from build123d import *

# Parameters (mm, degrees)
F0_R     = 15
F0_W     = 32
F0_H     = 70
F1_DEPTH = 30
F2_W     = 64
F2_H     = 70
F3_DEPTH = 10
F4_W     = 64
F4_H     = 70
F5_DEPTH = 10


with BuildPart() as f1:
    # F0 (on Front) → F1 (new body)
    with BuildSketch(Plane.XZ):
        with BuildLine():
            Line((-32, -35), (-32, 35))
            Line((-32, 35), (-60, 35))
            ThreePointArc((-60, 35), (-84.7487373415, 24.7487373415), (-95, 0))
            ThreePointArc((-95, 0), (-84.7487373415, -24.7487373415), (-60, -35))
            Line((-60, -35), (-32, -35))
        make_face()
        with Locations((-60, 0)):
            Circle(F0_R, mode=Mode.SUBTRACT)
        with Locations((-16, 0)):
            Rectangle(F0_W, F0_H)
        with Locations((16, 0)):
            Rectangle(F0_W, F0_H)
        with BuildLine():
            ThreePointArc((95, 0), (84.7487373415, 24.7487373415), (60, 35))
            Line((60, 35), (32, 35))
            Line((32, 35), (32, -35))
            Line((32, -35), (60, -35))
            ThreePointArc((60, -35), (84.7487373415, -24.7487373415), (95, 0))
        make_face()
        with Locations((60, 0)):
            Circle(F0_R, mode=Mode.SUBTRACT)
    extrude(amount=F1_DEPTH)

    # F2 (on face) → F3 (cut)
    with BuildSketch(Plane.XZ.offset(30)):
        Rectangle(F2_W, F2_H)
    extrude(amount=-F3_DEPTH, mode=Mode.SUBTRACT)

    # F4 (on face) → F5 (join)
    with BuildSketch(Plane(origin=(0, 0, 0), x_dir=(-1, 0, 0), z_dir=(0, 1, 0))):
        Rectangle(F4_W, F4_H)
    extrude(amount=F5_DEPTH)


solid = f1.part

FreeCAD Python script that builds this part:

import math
import FreeCAD as App
import Part
import Sketcher

doc = App.newDocument("Part")
body = doc.addObject("PartDesign::Body", "Body")

# Sketch on XZ plane
sketch1 = doc.addObject("Sketcher::SketchObject", "Sketch")
body.addObject(sketch1)
sketch1.AttachmentSupport = (doc.XZ_Plane, [""])
sketch1.MapMode = "FlatFace"
sketch1.addGeometry(Part.LineSegment(App.Vector(-60, -35, 0), App.Vector(60, -35, 0)), False)
sketch1.addGeometry(Part.ArcOfCircle(Part.Circle(App.Vector(60, 0, 0), App.Vector(0, 0, 1), 35), math.radians(-90), math.radians(0)), False)
sketch1.addGeometry(Part.ArcOfCircle(Part.Circle(App.Vector(60, 0, 0), App.Vector(0, 0, 1), 35), math.radians(0), math.radians(90)), False)
sketch1.addGeometry(Part.LineSegment(App.Vector(60, 35, 0), App.Vector(-60, 35, 0)), False)
sketch1.addGeometry(Part.ArcOfCircle(Part.Circle(App.Vector(-60, 0, 0), App.Vector(0, 0, 1), 35), math.radians(90), math.radians(180)), False)
sketch1.addGeometry(Part.ArcOfCircle(Part.Circle(App.Vector(-60, 0, 0), App.Vector(0, 0, 1), 35), math.radians(180), math.radians(270)), False)
sketch1.addGeometry(Part.Circle(App.Vector(-60, 0, 0), App.Vector(0, 0, 1), 15), False)
sketch1.addGeometry(Part.Circle(App.Vector(60, 0, 0), App.Vector(0, 0, 1), 15), False)
sketch1.addConstraint(Sketcher.Constraint("Tangent", 0, 2, 1, 1))
sketch1.addConstraint(Sketcher.Constraint("Tangent", 1, 2, 2, 1))
sketch1.addConstraint(Sketcher.Constraint("Tangent", 2, 2, 3, 1))
sketch1.addConstraint(Sketcher.Constraint("Tangent", 3, 2, 4, 1))
sketch1.addConstraint(Sketcher.Constraint("Tangent", 4, 2, 5, 1))
sketch1.addConstraint(Sketcher.Constraint("Tangent", 5, 2, 0, 1))
sketch1.addConstraint(Sketcher.Constraint("Horizontal", 0))
sketch1.addConstraint(Sketcher.Constraint("Horizontal", 3))
sketch1.addConstraint(Sketcher.Constraint("Coincident", 6, 3, 4, 3))
sketch1.addConstraint(Sketcher.Constraint("Coincident", 7, 3, 1, 3))
sketch1.addConstraint(Sketcher.Constraint("Equal", 1, 2))
sketch1.addConstraint(Sketcher.Constraint("Equal", 2, 4))
sketch1.addConstraint(Sketcher.Constraint("Equal", 6, 7))
sketch1.addConstraint(Sketcher.Constraint("Symmetric", 1, 3, 4, 3, -1, 1))
sketch1.addConstraint(Sketcher.Constraint("PointOnObject", 1, 2, -1))
sketch1.addConstraint(Sketcher.Constraint("PointOnObject", 4, 2, -1))
sketch1.addConstraint(Sketcher.Constraint("Diameter", 6, 30.0))
sketch1.addConstraint(Sketcher.Constraint("Radius", 1, 35.0))
sketch1.addConstraint(Sketcher.Constraint("DistanceX", 0, 1, 0, 2, 120.0))
pad1 = doc.addObject("PartDesign::Pad", "Pad")
body.addObject(pad1)
pad1.Profile = sketch1
pad1.Length = 30

# Sketch on XZ plane
sketch2 = doc.addObject("Sketcher::SketchObject", "Sketch001")
body.addObject(sketch2)
sketch2.AttachmentSupport = (doc.XZ_Plane, [""])
sketch2.MapMode = "FlatFace"
sketch2.AttachmentOffset = App.Placement(App.Vector(0, 0, 30), App.Rotation())
sketch2.addGeometry(Part.LineSegment(App.Vector(-32, 35, 0), App.Vector(-32, -35, 0)), False)
sketch2.addGeometry(Part.LineSegment(App.Vector(-32, -35, 0), App.Vector(32, -35, 0)), False)
sketch2.addGeometry(Part.LineSegment(App.Vector(32, -35, 0), App.Vector(32, 35, 0)), False)
sketch2.addGeometry(Part.LineSegment(App.Vector(32, 35, 0), App.Vector(-32, 35, 0)), False)
sketch2.addConstraint(Sketcher.Constraint("Coincident", 0, 2, 1, 1))
sketch2.addConstraint(Sketcher.Constraint("Coincident", 1, 2, 2, 1))
sketch2.addConstraint(Sketcher.Constraint("Coincident", 2, 2, 3, 1))
sketch2.addConstraint(Sketcher.Constraint("Coincident", 3, 2, 0, 1))
sketch2.addConstraint(Sketcher.Constraint("Vertical", 0))
sketch2.addConstraint(Sketcher.Constraint("Horizontal", 1))
sketch2.addConstraint(Sketcher.Constraint("Vertical", 2))
sketch2.addConstraint(Sketcher.Constraint("Horizontal", 3))
sketch2.addConstraint(Sketcher.Constraint("Symmetric", 0, 2, 2, 2, -1, 1))
sketch2.addConstraint(Sketcher.Constraint("DistanceX", 1, 1, 1, 2, 64.0))
sketch2.addConstraint(Sketcher.Constraint("DistanceY", 0, 2, 0, 1, 70.0))
pocket1 = doc.addObject("PartDesign::Pocket", "Pocket")
body.addObject(pocket1)
pocket1.Profile = sketch2
pocket1.Length = 10

# Sketch on XZ plane
sketch3 = doc.addObject("Sketcher::SketchObject", "Sketch002")
body.addObject(sketch3)
sketch3.AttachmentSupport = (doc.XZ_Plane, [""])
sketch3.MapMode = "FlatFace"
sketch3.addGeometry(Part.LineSegment(App.Vector(32, 35, 0), App.Vector(32, -35, 0)), False)
sketch3.addGeometry(Part.LineSegment(App.Vector(32, -35, 0), App.Vector(-32, -35, 0)), False)
sketch3.addGeometry(Part.LineSegment(App.Vector(-32, -35, 0), App.Vector(-32, 35, 0)), False)
sketch3.addGeometry(Part.LineSegment(App.Vector(-32, 35, 0), App.Vector(32, 35, 0)), False)
sketch3.addConstraint(Sketcher.Constraint("Coincident", 0, 2, 1, 1))
sketch3.addConstraint(Sketcher.Constraint("Coincident", 1, 2, 2, 1))
sketch3.addConstraint(Sketcher.Constraint("Coincident", 2, 2, 3, 1))
sketch3.addConstraint(Sketcher.Constraint("Coincident", 3, 2, 0, 1))
sketch3.addConstraint(Sketcher.Constraint("Vertical", 0))
sketch3.addConstraint(Sketcher.Constraint("Horizontal", 1))
sketch3.addConstraint(Sketcher.Constraint("Vertical", 2))
sketch3.addConstraint(Sketcher.Constraint("Horizontal", 3))
sketch3.addConstraint(Sketcher.Constraint("Symmetric", 0, 2, 2, 2, -1, 1))
sketch3.addConstraint(Sketcher.Constraint("DistanceX", 1, 2, 1, 1, 64.0))
sketch3.addConstraint(Sketcher.Constraint("DistanceY", 0, 2, 0, 1, 70.0))
pad2 = doc.addObject("PartDesign::Pad", "Pad001")
body.addObject(pad2)
pad2.Profile = sketch3
pad2.Length = 10
pad2.Reversed = True

doc.recompute()
